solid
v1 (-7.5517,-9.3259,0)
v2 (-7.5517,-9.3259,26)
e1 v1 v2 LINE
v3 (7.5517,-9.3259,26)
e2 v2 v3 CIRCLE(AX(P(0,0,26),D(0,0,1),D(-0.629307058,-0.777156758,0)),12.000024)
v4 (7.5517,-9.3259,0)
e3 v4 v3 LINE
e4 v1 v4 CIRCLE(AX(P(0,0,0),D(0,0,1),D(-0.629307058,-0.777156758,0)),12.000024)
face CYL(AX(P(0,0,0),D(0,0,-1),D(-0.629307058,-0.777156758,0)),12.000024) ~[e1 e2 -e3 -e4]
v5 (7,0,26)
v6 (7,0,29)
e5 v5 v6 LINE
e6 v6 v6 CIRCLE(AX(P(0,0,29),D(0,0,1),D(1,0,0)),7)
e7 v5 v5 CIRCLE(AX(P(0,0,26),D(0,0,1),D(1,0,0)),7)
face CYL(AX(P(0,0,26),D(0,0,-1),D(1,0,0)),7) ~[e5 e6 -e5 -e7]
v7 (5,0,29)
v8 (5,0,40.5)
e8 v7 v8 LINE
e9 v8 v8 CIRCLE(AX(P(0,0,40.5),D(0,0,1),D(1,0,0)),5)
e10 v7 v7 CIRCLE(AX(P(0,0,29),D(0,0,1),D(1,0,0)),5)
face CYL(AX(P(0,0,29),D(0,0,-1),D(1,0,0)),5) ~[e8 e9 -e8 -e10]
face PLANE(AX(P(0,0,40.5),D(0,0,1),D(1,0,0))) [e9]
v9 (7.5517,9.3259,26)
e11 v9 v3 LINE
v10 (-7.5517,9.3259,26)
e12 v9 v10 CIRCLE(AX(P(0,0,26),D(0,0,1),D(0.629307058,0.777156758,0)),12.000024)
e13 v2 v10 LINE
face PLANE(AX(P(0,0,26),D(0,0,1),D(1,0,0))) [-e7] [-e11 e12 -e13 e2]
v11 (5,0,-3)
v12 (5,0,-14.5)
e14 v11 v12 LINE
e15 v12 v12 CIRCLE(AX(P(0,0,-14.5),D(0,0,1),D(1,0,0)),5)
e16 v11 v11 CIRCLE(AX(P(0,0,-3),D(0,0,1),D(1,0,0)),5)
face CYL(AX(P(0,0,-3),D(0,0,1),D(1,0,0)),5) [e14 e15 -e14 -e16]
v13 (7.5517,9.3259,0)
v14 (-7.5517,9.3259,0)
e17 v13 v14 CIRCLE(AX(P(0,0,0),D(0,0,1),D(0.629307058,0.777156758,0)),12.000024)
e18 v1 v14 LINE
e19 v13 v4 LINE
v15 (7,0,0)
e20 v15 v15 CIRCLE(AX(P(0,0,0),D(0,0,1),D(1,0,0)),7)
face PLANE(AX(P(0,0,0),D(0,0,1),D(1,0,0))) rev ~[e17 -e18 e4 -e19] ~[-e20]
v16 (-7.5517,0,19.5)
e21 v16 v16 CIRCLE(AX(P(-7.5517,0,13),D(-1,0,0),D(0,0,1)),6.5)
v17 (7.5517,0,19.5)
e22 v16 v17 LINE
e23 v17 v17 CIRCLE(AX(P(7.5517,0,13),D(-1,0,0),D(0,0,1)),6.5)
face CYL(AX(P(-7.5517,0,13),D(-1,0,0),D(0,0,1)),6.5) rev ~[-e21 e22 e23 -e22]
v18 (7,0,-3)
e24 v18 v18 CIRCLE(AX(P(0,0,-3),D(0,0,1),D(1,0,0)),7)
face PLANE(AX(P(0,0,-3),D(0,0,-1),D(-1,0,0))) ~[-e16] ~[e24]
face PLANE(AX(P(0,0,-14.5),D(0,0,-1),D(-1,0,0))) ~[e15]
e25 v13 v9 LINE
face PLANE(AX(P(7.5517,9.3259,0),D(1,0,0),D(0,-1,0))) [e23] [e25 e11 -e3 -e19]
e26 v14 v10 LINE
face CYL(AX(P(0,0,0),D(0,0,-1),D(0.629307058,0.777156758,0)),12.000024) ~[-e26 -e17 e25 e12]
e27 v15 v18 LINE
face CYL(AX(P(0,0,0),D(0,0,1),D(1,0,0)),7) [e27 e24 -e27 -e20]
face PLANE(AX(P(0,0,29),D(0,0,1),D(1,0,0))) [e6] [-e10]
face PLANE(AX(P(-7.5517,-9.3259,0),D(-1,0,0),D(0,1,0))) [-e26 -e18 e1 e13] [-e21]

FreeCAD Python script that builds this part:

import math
import FreeCAD as App
import Part
import Sketcher

doc = App.newDocument("Part")
body = doc.addObject("PartDesign::Body", "Body")

# Sketch on XY plane
sketch1 = doc.addObject("Sketcher::SketchObject", "Sketch")
body.addObject(sketch1)
sketch1.AttachmentSupport = (doc.XY_Plane, [""])
sketch1.MapMode = "FlatFace"
sketch1.addGeometry(Part.LineSegment(App.Vector(8, -9, 0), App.Vector(8, 9, 0)), False)
sketch1.addGeometry(Part.ArcOfCircle(Part.Circle(App.Vector(0, 0, 0), App.Vector(0, 0, 1), 12), math.radians(51), math.radians(129)), False)
sketch1.addGeometry(Part.LineSegment(App.Vector(-8, 9, 0), App.Vector(-8, -9, 0)), False)
sketch1.addGeometry(Part.ArcOfCircle(Part.Circle(App.Vector(0, 0, 0), App.Vector(0, 0, 1), 12), math.radians(-129), math.radians(-51)), False)
sketch1.addConstraint(Sketcher.Constraint("Coincident", 0, 2, 1, 1))
sketch1.addConstraint(Sketcher.Constraint("Coincident", 1, 2, 2, 1))
sketch1.addConstraint(Sketcher.Constraint("Coincident", 2, 2, 3, 1))
sketch1.addConstraint(Sketcher.Constraint("Coincident", 3, 2, 0, 1))
sketch1.addConstraint(Sketcher.Constraint("Vertical", 0))
sketch1.addConstraint(Sketcher.Constraint("Vertical", 2))
sketch1.addConstraint(Sketcher.Constraint("Coincident", 1, 3, -1, 1))
sketch1.addConstraint(Sketcher.Constraint("Coincident", 3, 3, -1, 1))
sketch1.addConstraint(Sketcher.Constraint("Equal", 1, 3))
sketch1.addConstraint(Sketcher.Constraint("Horizontal", 0, 2, 1, 2))
sketch1.addConstraint(Sketcher.Constraint("Radius", 1, 12.0))
sketch1.addConstraint(Sketcher.Constraint("DistanceY", 0, 1, 0, 2, 18.6518))
pad1 = doc.addObject("PartDesign::Pad", "Pad")
body.addObject(pad1)
pad1.Profile = sketch1
pad1.Length = 26

# Sketch on XY plane
sketch2 = doc.addObject("Sketcher::SketchObject", "Sketch001")
body.addObject(sketch2)
sketch2.AttachmentSupport = (doc.XY_Plane, [""])
sketch2.MapMode = "FlatFace"
sketch2.AttachmentOffset = App.Placement(App.Vector(0, 0, 26), App.Rotation())
sketch2.addGeometry(Part.Circle(App.Vector(0, 0, 0), App.Vector(0, 0, 1), 7), False)
sketch2.addConstraint(Sketcher.Constraint("Coincident", 0, 3, -1, 1))
sketch2.addConstraint(Sketcher.Constraint("Diameter", 0, 14.0))
pad2 = doc.addObject("PartDesign::Pad", "Pad001")
body.addObject(pad2)
pad2.Profile = sketch2
pad2.Length = 3

# Sketch on XY plane
sketch3 = doc.addObject("Sketcher::SketchObject", "Sketch002")
body.addObject(sketch3)
sketch3.AttachmentSupport = (doc.XY_Plane, [""])
sketch3.MapMode = "FlatFace"
sketch3.AttachmentOffset = App.Placement(App.Vector(0, 0, 29), App.Rotation())
sketch3.addGeometry(Part.Circle(App.Vector(0, 0, 0), App.Vector(0, 0, 1), 5), False)
sketch3.addConstraint(Sketcher.Constraint("Coincident", 0, 3, -1, 1))
sketch3.addConstraint(Sketcher.Constraint("Diameter", 0, 10.0))
pad3 = doc.addObject("PartDesign::Pad", "Pad002")
body.addObject(pad3)
pad3.Profile = sketch3
pad3.Length = 11.5
doc.recompute()

datumplane = doc.addObject("PartDesign::Plane", "DatumPlane")
body.addObject(datumplane)
datumplane.AttachmentSupport = (doc.XY_Plane, [""])
datumplane.MapMode = "FlatFace"
datumplane.AttachmentOffset = App.Placement(App.Vector(0, 0, 13), App.Rotation())
mirrored = doc.addObject("PartDesign::Mirrored", "Mirrored")
body.addObject(mirrored)
mirrored.Originals = [pad3, pad2]
mirrored.MirrorPlane = (datumplane, [""])
body.Tip = mirrored

# Sketch on YZ plane
sketch4 = doc.addObject("Sketcher::SketchObject", "Sketch003")
body.addObject(sketch4)
sketch4.AttachmentSupport = (doc.YZ_Plane, [""])
sketch4.MapMode = "FlatFace"
sketch4.AttachmentOffset = App.Placement(App.Vector(0, 0, -7.5517), App.Rotation())
sketch4.addGeometry(Part.Circle(App.Vector(0, 13, 0), App.Vector(0, 0, 1), 6), False)
sketch4.addConstraint(Sketcher.Constraint("PointOnObject", 0, 3, -2))
sketch4.addConstraint(Sketcher.Constraint("Diameter", 0, 13.0))
sketch4.addConstraint(Sketcher.Constraint("DistanceY", -1, 1, 0, 3, 13.0))
pocket1 = doc.addObject("PartDesign::Pocket", "Pocket")
body.addObject(pocket1)
pocket1.Profile = sketch4
pocket1.Length = 100
pocket1.Reversed = True

doc.recompute()
